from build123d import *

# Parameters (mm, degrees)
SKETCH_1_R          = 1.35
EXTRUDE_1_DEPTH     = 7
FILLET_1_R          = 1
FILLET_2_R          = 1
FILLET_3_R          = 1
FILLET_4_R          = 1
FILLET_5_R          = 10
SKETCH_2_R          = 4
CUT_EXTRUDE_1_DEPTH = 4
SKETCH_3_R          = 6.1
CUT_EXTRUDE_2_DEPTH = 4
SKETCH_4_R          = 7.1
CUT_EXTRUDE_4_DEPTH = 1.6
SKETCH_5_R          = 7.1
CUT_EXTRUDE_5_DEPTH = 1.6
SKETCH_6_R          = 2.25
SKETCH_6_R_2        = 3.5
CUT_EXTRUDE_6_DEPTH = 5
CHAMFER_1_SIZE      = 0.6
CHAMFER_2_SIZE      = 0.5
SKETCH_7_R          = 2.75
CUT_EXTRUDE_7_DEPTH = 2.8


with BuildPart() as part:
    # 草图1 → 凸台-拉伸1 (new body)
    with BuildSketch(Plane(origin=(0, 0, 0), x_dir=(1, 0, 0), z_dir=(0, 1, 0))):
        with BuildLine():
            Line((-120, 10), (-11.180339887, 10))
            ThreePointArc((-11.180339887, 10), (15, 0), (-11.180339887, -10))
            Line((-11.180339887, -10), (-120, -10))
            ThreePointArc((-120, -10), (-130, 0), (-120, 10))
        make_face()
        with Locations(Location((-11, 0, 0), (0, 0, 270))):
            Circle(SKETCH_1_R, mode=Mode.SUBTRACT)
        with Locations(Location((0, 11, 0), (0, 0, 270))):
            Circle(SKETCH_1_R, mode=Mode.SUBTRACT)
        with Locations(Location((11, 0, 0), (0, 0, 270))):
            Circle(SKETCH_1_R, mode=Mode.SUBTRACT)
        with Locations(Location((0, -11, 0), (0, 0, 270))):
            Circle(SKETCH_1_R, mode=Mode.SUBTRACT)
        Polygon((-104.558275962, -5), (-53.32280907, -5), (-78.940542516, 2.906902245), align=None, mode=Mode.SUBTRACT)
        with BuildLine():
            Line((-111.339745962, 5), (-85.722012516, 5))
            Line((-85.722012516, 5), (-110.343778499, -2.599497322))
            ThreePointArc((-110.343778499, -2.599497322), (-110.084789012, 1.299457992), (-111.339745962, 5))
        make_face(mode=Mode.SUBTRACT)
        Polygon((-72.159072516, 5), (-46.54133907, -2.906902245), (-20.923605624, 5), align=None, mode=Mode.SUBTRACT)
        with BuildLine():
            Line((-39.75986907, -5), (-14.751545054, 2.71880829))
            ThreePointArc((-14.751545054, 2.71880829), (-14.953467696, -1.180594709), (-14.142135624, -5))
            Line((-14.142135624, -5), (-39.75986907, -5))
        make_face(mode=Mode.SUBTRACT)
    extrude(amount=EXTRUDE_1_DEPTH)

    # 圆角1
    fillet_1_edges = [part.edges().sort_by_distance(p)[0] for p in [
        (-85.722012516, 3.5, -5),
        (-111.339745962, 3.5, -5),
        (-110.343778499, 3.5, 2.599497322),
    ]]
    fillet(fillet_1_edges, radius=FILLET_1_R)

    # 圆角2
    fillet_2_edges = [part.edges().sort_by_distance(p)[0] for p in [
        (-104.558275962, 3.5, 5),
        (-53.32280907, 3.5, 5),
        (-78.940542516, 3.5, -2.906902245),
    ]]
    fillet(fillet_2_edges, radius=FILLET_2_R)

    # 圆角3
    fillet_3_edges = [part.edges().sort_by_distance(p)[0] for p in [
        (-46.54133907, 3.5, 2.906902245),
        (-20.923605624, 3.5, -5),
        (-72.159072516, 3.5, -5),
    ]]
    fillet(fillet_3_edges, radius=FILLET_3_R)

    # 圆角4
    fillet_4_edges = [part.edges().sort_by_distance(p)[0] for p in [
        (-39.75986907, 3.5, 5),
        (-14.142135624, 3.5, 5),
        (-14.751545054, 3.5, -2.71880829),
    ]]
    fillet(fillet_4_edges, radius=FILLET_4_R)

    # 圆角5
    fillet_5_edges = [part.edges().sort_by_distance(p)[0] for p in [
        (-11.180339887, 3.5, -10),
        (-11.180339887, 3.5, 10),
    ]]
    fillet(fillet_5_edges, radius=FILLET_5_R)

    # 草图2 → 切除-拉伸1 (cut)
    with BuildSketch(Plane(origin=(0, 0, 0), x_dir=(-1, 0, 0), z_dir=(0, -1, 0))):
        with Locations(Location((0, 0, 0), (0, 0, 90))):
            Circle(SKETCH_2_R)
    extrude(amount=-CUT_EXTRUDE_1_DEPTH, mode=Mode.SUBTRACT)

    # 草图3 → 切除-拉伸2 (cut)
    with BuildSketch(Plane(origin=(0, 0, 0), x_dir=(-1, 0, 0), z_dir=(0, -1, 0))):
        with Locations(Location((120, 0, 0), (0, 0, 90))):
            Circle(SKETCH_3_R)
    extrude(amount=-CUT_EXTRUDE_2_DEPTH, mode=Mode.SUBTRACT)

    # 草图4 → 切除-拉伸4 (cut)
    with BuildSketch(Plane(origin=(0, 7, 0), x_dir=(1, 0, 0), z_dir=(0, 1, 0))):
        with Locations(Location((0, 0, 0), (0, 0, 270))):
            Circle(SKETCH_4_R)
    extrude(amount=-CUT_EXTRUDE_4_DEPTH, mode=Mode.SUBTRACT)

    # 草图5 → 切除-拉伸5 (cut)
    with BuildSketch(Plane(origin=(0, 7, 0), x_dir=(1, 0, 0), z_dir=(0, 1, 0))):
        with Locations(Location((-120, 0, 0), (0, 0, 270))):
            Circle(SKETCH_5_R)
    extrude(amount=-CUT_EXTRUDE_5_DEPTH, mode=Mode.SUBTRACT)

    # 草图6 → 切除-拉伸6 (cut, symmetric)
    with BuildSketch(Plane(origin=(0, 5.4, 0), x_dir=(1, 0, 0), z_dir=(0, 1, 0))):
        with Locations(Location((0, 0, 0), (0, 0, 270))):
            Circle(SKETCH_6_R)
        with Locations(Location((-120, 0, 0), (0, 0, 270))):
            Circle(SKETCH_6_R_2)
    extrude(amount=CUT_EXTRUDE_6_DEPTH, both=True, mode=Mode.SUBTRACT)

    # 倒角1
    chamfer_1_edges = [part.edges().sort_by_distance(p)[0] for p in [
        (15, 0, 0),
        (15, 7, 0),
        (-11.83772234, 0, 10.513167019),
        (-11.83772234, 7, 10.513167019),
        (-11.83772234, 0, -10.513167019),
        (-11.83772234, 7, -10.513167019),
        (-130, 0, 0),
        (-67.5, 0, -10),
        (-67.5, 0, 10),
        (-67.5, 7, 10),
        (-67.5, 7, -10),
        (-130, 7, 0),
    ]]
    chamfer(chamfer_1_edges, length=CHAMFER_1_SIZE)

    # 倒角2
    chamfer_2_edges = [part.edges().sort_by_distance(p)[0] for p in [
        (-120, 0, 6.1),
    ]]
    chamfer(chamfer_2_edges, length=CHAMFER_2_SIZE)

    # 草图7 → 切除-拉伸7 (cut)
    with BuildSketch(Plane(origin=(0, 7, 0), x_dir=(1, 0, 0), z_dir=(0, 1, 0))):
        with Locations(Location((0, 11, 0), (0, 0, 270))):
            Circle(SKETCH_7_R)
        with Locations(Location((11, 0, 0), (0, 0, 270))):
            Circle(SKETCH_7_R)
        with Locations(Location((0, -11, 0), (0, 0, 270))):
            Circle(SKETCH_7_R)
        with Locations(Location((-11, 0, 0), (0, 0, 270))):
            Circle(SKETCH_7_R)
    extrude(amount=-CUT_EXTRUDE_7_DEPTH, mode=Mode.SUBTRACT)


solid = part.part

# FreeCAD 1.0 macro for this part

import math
import FreeCAD as App
import Part
import Sketcher


def edges_at(feature, points):
    """Names of the edges that pass closest to the given points."""
    edges = feature.Shape.Edges
    near = lambda p: min(range(len(edges)), key=lambda i: edges[i].distToShape(Part.Vertex(*p))[0])
    return sorted({f"Edge{near(p) + 1}" for p in points})

doc = App.newDocument("Part")
body = doc.addObject("PartDesign::Body", "Body")

# Sketch on XZ plane
sketch1 = body.newObject("Sketcher::SketchObject", "Sketch")
sketch1.AttachmentSupport = (doc.getObject("XZ_Plane"), [""])
sketch1.MapMode = "FlatFace"
sketch1.addGeometry([
    Part.LineSegment(App.Vector(-11.18034, -10, 0), App.Vector(-120, -10, 0)),  # 0
    Part.ArcOfCircle(Part.Circle(App.Vector(-120, 0, 0), App.Vector(0, 0, 1), 10), math.radians(90), math.radians(270)),  # 1
    Part.LineSegment(App.Vector(-120, 10, 0), App.Vector(-11.18034, 10, 0)),  # 2
    Part.ArcOfCircle(Part.Circle(App.Vector(0, 0, 0), App.Vector(0, 0, 1), 15), math.radians(-138.189685), math.radians(138.189685)),  # 3
    Part.Circle(App.Vector(0, 11, 0), App.Vector(0, 0, 1), 1.35),  # 4
    Part.LineSegment(App.Vector(-39.759869, 5, 0), App.Vector(-14.751545, -2.718808, 0)),  # 5
    Part.ArcOfCircle(Part.Circle(App.Vector(0, 0, 0), App.Vector(0, 0, 1), 15), math.radians(160.528779), math.radians(190.442804)),  # 6
    Part.LineSegment(App.Vector(-14.142136, 5, 0), App.Vector(-39.759869, 5, 0)),  # 7
    Part.LineSegment(App.Vector(-104.558276, 5, 0), App.Vector(-78.940543, -2.906902, 0)),  # 8
    Part.LineSegment(App.Vector(-78.940543, -2.906902, 0), App.Vector(-53.322809, 5, 0)),  # 9
    Part.LineSegment(App.Vector(-53.322809, 5, 0), App.Vector(-104.558276, 5, 0)),  # 10
    Part.Circle(App.Vector(11, 0, 0), App.Vector(0, 0, 1), 1.35),  # 11
    Part.Circle(App.Vector(-11, 0, 0), App.Vector(0, 0, 1), 1.35),  # 12
    Part.LineSegment(App.Vector(-72.159073, -5, 0), App.Vector(-20.923606, -5, 0)),  # 13
    Part.LineSegment(App.Vector(-20.923606, -5, 0), App.Vector(-46.541339, 2.906902, 0)),  # 14
    Part.LineSegment(App.Vector(-46.541339, 2.906902, 0), App.Vector(-72.159073, -5, 0)),  # 15
    Part.Circle(App.Vector(0, -11, 0), App.Vector(0, 0, 1), 1.35),  # 16
    Part.LineSegment(App.Vector(-111.339746, -5, 0), App.Vector(-85.722013, -5, 0)),  # 17
    Part.LineSegment(App.Vector(-85.722013, -5, 0), App.Vector(-110.343778, 2.599497, 0)),  # 18
    Part.ArcOfCircle(Part.Circle(App.Vector(-120, 0, 0), App.Vector(0, 0, 1), 10), math.radians(-30), math.radians(15.067079)),  # 19
], False)
sketch1.addConstraint([
    Sketcher.Constraint("Tangent", 0, 2, 1, 2),
    Sketcher.Constraint("Tangent", 1, 1, 2, 1),
    Sketcher.Constraint("Coincident", 2, 2, 3, 2),
    Sketcher.Constraint("Coincident", 3, 1, 0, 1),
    Sketcher.Constraint("Coincident", 5, 2, 6, 2),
    Sketcher.Constraint("Coincident", 6, 1, 7, 1),
    Sketcher.Constraint("Coincident", 7, 2, 5, 1),
    Sketcher.Constraint("Coincident", 8, 2, 9, 1),
    Sketcher.Constraint("Coincident", 9, 2, 10, 1),
    Sketcher.Constraint("Coincident", 10, 2, 8, 1),
    Sketcher.Constraint("Coincident", 13, 2, 14, 1),
    Sketcher.Constraint("Coincident", 14, 2, 15, 1),
    Sketcher.Constraint("Coincident", 15, 2, 13, 1),
    Sketcher.Constraint("Coincident", 17, 2, 18, 1),
    Sketcher.Constraint("Coincident", 18, 2, 19, 2),
    Sketcher.Constraint("Coincident", 19, 1, 17, 1),
    Sketcher.Constraint("Horizontal", 0),
    Sketcher.Constraint("Horizontal", 2),
    Sketcher.Constraint("Horizontal", 7),
    Sketcher.Constraint("Horizontal", 10),
    Sketcher.Constraint("Horizontal", 13),
    Sketcher.Constraint("Horizontal", 17),
    Sketcher.Constraint("Coincident", 3, 3, -1, 1),
    Sketcher.Constraint("Coincident", 6, 3, -1, 1),
    Sketcher.Constraint("Coincident", 19, 3, 1, 3),
    Sketcher.Constraint("Equal", 3, 6),
    Sketcher.Constraint("Equal", 4, 11),
    Sketcher.Constraint("Equal", 11, 12),
    Sketcher.Constraint("Equal", 12, 16),
    Sketcher.Constraint("Equal", 1, 19),
    Sketcher.Constraint("Symmetric", 11, 3, 12, 3, -1, 1),
    Sketcher.Constraint("Symmetric", 4, 3, 16, 3, -1, 1),
    Sketcher.Constraint("PointOnObject", 1, 3, -1),
    Sketcher.Constraint("PointOnObject", 4, 3, -2),
    Sketcher.Constraint("PointOnObject", 11, 3, -1),
    Sketcher.Constraint("Parallel", 5, 8),
    Sketcher.Constraint("Parallel", 8, 14),
    Sketcher.Constraint("Parallel", 9, 15),
    Sketcher.Constraint("Parallel", 14, 18),
    Sketcher.Constraint("Horizontal", 7, 2, 9, 2),
    Sketcher.Constraint("Horizontal", 15, 2, 17, 2),
    Sketcher.Constraint("Equal", 10, 13),
    Sketcher.Constraint("Equal", 7, 17),
    Sketcher.Constraint("Equal", 8, 9),
    Sketcher.Constraint("Radius", 1, 10.0),
    Sketcher.Constraint("Radius", 3, 15.0),
    Sketcher.Constraint("Diameter", 4, 2.7),
    Sketcher.Constraint("DistanceX", 1, 3, -1, 1, 120.0),
    Sketcher.Constraint("DistanceY", -1, 1, 4, 3, 11.0),
    Sketcher.Constraint("DistanceX", -1, 1, 11, 3, 11.0),
    Sketcher.Constraint("DistanceY", -1, 1, 6, 1, 5.0),
    Sketcher.Constraint("DistanceY", 13, 2, -1, 1, 5.0),
    Sketcher.Constraint("Distance", 8, 26.81021),
    Sketcher.Constraint("Distance", 18, 25.767882),
    Sketcher.Constraint("DistanceX", 7, 2, 7, 1, 25.617733),
    Sketcher.Constraint("DistanceX", 9, 2, -1, 1, 53.322809),
    Sketcher.Constraint("DistanceX", 14, 2, -1, 1, 46.541339),
])
pad1 = body.newObject("PartDesign::Pad", "Pad")
pad1.Profile = sketch1
pad1.Length = 7
pad1.Reversed = True
doc.recompute()

fillet = body.newObject("PartDesign::Fillet", "Fillet")
fillet.Base = (pad1, edges_at(pad1, [(-85.722, 3.5, -5), (-111.34, 3.5, -5), (-110.344, 3.5, 2.599)]))
fillet.Radius = 1
doc.recompute()

fillet2 = body.newObject("PartDesign::Fillet", "Fillet001")
fillet2.Base = (fillet, edges_at(fillet, [(-104.558, 3.5, 5), (-53.323, 3.5, 5), (-78.941, 3.5, -2.907)]))
fillet2.Radius = 1
doc.recompute()

fillet3 = body.newObject("PartDesign::Fillet", "Fillet002")
fillet3.Base = (fillet2, edges_at(fillet2, [(-46.541, 3.5, 2.907), (-20.924, 3.5, -5), (-72.159, 3.5, -5)]))
fillet3.Radius = 1
doc.recompute()

fillet4 = body.newObject("PartDesign::Fillet", "Fillet003")
fillet4.Base = (fillet3, edges_at(fillet3, [(-39.76, 3.5, 5), (-14.142, 3.5, 5), (-14.752, 3.5, -2.719)]))
fillet4.Radius = 1
doc.recompute()

fillet5 = body.newObject("PartDesign::Fillet", "Fillet004")
fillet5.Base = (fillet4, edges_at(fillet4, [(-11.18, 3.5, -10), (-11.18, 3.5, 10)]))
fillet5.Radius = 10

# Sketch on XZ plane
sketch2 = body.newObject("Sketcher::SketchObject", "Sketch001")
sketch2.AttachmentSupport = (doc.getObject("XZ_Plane"), [""])
sketch2.MapMode = "FlatFace"
sketch2.addGeometry(Part.Circle(App.Vector(0, 0, 0), App.Vector(0, 0, 1), 4), False)
sketch2.addConstraint([
    Sketcher.Constraint("Coincident", 0, 3, -1, 1),
    Sketcher.Constraint("Diameter", 0, 8.0),
])
pocket1 = body.newObject("PartDesign::Pocket", "Pocket")
pocket1.Profile = sketch2
pocket1.Length = 4

# Sketch on XZ plane
sketch3 = body.newObject("Sketcher::SketchObject", "Sketch002")
sketch3.AttachmentSupport = (doc.getObject("XZ_Plane"), [""])
sketch3.MapMode = "FlatFace"
sketch3.addGeometry(Part.Circle(App.Vector(-120, 0, 0), App.Vector(0, 0, 1), 6.1), False)
sketch3.addConstraint([
    Sketcher.Constraint("PointOnObject", 0, 3, -1),
    Sketcher.Constraint("Diameter", 0, 12.2),
    Sketcher.Constraint("DistanceX", 0, 3, -1, 1, 120.0),
])
pocket2 = body.newObject("PartDesign::Pocket", "Pocket001")
pocket2.Profile = sketch3
pocket2.Length = 4

# Sketch on XZ plane
sketch4 = body.newObject("Sketcher::SketchObject", "Sketch003")
sketch4.AttachmentSupport = (doc.getObject("XZ_Plane"), [""])
sketch4.MapMode = "FlatFace"
sketch4.AttachmentOffset = App.Placement(App.Vector(0, 0, -7), App.Rotation())
sketch4.addGeometry(Part.Circle(App.Vector(0, 0, 0), App.Vector(0, 0, 1), 7.1), False)
sketch4.addConstraint([
    Sketcher.Constraint("Coincident", 0, 3, -1, 1),
    Sketcher.Constraint("Diameter", 0, 14.2),
])
pocket3 = body.newObject("PartDesign::Pocket", "Pocket002")
pocket3.Profile = sketch4
pocket3.Length = 1.6
pocket3.Reversed = True

# Sketch on XZ plane
sketch5 = body.newObject("Sketcher::SketchObject", "Sketch004")
sketch5.AttachmentSupport = (doc.getObject("XZ_Plane"), [""])
sketch5.MapMode = "FlatFace"
sketch5.AttachmentOffset = App.Placement(App.Vector(0, 0, -7), App.Rotation())
sketch5.addGeometry(Part.Circle(App.Vector(-120, 0, 0), App.Vector(0, 0, 1), 7.1), False)
sketch5.addConstraint([
    Sketcher.Constraint("PointOnObject", 0, 3, -1),
    Sketcher.Constraint("Diameter", 0, 14.2),
    Sketcher.Constraint("DistanceX", 0, 3, -1, 1, 120.0),
])
pocket4 = body.newObject("PartDesign::Pocket", "Pocket003")
pocket4.Profile = sketch5
pocket4.Length = 1.6
pocket4.Reversed = True

# Sketch on XZ plane
sketch6 = body.newObject("Sketcher::SketchObject", "Sketch005")
sketch6.AttachmentSupport = (doc.getObject("XZ_Plane"), [""])
sketch6.MapMode = "FlatFace"
sketch6.AttachmentOffset = App.Placement(App.Vector(0, 0, -5.4), App.Rotation())
sketch6.addGeometry([
    Part.Circle(App.Vector(0, 0, 0), App.Vector(0, 0, 1), 2.25),
    Part.Circle(App.Vector(-120, 0, 0), App.Vector(0, 0, 1), 3.5),
], False)
sketch6.addConstraint([
    Sketcher.Constraint("Coincident", 0, 3, -1, 1),
    Sketcher.Constraint("PointOnObject", 1, 3, -1),
    Sketcher.Constraint("Diameter", 1, 7.0),
    Sketcher.Constraint("Diameter", 0, 4.5),
    Sketcher.Constraint("DistanceX", 1, 3, -1, 1, 120.0),
])
pocket5 = body.newObject("PartDesign::Pocket", "Pocket004")
pocket5.Profile = sketch6
pocket5.Length = 10
pocket5.Midplane = True
doc.recompute()

chamfer = body.newObject("PartDesign::Chamfer", "Chamfer")
chamfer.Base = (pocket5, edges_at(pocket5, [
    (15, 0, 0),
    (15, 7, 0),
    (-11.838, 0, 10.513),
    (-11.838, 7, 10.513),
    (-11.838, 0, -10.513),
    (-11.838, 7, -10.513),
    (-130, 0, 0),
    (-67.5, 0, -10),
    (-67.5, 0, 10),
    (-67.5, 7, 10),
    (-67.5, 7, -10),
    (-130, 7, 0),
]))
chamfer.Size = 0.6
doc.recompute()

chamfer2 = body.newObject("PartDesign::Chamfer", "Chamfer001")
chamfer2.Base = (chamfer, edges_at(chamfer, [(-120, 0, 6.1)]))
chamfer2.Size = 0.5

# Sketch on XZ plane
sketch7 = body.newObject("Sketcher::SketchObject", "Sketch006")
sketch7.AttachmentSupport = (doc.getObject("XZ_Plane"), [""])
sketch7.MapMode = "FlatFace"
sketch7.AttachmentOffset = App.Placement(App.Vector(0, 0, -7), App.Rotation())
sketch7.addGeometry([
    Part.Circle(App.Vector(0, -11, 0), App.Vector(0, 0, 1), 2.75),
    Part.Circle(App.Vector(11, 0, 0), App.Vector(0, 0, 1), 2.75),
    Part.Circle(App.Vector(0, 11, 0), App.Vector(0, 0, 1), 2.75),
    Part.Circle(App.Vector(-11, 0, 0), App.Vector(0, 0, 1), 2.75),
], False)
sketch7.addConstraint([
    Sketcher.Constraint("Equal", 0, 1),
    Sketcher.Constraint("Equal", 1, 2),
    Sketcher.Constraint("Equal", 2, 3),
    Sketcher.Constraint("Symmetric", 0, 3, 2, 3, -1, 1),
    Sketcher.Constraint("Symmetric", 1, 3, 3, 3, -1, 1),
    Sketcher.Constraint("PointOnObject", 0, 3, -2),
    Sketcher.Constraint("PointOnObject", 1, 3, -1),
    Sketcher.Constraint("Diameter", 0, 5.5),
    Sketcher.Constraint("DistanceY", 0, 3, -1, 1, 11.0),
    Sketcher.Constraint("DistanceX", -1, 1, 1, 3, 11.0),
])
pocket6 = body.newObject("PartDesign::Pocket", "Pocket005")
pocket6.Profile = sketch7
pocket6.Length = 2.8
pocket6.Reversed = True

doc.recompute()
